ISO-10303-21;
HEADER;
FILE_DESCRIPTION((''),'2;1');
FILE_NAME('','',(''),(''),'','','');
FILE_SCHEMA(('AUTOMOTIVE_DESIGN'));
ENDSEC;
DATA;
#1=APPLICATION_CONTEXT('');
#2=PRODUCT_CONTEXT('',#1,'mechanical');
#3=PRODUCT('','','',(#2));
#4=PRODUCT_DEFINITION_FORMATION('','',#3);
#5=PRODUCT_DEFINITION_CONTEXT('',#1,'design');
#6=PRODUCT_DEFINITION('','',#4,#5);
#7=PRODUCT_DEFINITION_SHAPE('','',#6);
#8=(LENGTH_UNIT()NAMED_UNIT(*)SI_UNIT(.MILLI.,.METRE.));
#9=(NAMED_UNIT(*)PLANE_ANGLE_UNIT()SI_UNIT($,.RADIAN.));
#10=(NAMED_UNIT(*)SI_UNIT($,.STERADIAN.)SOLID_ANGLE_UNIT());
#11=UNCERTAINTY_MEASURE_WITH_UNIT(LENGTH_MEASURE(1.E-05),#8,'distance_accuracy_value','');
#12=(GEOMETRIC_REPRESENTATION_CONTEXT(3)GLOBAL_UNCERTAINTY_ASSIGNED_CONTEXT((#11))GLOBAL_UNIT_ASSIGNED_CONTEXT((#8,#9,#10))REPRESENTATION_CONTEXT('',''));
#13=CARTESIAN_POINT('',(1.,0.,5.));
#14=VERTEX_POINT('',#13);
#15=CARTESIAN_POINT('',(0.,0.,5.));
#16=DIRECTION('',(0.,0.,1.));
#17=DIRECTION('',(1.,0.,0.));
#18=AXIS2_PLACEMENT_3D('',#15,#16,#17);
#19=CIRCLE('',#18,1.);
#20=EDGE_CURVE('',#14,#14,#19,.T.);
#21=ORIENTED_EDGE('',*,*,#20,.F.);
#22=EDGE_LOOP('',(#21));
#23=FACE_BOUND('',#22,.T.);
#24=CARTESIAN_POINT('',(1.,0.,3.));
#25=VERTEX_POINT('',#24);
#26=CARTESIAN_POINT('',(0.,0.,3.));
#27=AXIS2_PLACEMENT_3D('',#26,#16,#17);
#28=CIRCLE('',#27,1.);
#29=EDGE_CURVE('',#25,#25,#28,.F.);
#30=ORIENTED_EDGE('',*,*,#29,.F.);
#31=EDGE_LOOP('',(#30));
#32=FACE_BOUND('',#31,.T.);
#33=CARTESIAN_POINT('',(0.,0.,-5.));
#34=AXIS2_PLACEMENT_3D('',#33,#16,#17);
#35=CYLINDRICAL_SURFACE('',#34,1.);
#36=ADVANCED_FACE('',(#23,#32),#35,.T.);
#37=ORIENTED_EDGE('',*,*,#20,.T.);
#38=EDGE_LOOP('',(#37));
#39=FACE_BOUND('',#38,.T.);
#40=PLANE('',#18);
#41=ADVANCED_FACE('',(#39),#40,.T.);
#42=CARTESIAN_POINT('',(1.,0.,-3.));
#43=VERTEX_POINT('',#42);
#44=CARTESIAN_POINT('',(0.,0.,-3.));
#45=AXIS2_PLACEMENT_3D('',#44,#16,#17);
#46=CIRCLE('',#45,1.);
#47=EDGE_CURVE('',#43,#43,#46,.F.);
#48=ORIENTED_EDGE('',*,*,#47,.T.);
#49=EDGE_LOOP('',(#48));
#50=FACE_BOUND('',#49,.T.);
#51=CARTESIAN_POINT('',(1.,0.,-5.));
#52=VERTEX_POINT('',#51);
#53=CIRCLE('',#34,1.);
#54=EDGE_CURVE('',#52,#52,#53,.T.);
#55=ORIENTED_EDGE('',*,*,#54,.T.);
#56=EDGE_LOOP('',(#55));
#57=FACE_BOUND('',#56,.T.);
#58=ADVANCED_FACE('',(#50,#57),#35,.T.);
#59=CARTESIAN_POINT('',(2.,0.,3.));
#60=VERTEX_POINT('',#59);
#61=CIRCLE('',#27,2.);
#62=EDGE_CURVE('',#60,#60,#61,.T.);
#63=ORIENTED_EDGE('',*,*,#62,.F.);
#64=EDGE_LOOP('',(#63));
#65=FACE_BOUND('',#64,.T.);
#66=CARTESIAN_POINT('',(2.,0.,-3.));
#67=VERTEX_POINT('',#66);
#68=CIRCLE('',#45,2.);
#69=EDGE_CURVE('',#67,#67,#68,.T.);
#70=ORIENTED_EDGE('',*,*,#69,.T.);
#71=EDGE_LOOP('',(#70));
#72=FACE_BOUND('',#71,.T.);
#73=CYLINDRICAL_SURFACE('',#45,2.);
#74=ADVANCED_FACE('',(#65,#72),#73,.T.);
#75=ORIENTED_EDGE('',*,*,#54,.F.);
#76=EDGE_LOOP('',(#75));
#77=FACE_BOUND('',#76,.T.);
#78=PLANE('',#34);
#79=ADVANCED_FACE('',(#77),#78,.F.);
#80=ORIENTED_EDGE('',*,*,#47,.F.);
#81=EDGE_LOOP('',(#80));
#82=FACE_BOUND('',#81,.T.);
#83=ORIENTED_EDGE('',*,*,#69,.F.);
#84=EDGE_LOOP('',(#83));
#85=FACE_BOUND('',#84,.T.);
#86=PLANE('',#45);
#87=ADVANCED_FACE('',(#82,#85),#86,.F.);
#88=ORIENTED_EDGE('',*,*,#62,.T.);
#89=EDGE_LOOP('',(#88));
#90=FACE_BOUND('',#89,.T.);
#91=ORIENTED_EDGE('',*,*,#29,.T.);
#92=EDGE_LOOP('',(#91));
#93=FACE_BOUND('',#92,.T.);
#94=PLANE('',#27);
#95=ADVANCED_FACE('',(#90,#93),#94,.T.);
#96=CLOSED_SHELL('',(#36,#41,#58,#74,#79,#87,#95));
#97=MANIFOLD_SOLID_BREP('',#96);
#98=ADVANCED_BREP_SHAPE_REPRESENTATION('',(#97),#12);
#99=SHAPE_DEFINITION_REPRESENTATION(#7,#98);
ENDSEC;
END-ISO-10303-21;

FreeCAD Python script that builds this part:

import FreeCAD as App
import Part
import Sketcher
from FreeCAD import Vector
Q = App.Units.Quantity

doc = App.newDocument("Part")
body = doc.addObject("PartDesign::Body", "Body")

# Sketch on XY plane
sketch1 = doc.addObject("Sketcher::SketchObject", "Sketch")
body.addObject(sketch1)
sketch1.AttachmentSupport = (doc.XY_Plane, [""])
sketch1.MapMode = "FlatFace"
sketch1.addGeometry(Part.Circle(Vector(0, 0, 0), Vector(0, 0, 1), 1), False)
sketch1.addConstraint(Sketcher.Constraint("Coincident", 0, 3, -1, 1))
sketch1.addConstraint(Sketcher.Constraint("Diameter", 0, Q("2 mm")))
pad1 = doc.addObject("PartDesign::Pad", "Pad")
body.addObject(pad1)
pad1.Profile = sketch1
pad1.Type = "TwoLengths"
pad1.Length = 5
pad1.Length2 = 5

# Sketch on XY plane
sketch2 = doc.addObject("Sketcher::SketchObject", "Sketch001")
body.addObject(sketch2)
sketch2.AttachmentSupport = (doc.XY_Plane, [""])
sketch2.MapMode = "FlatFace"
sketch2.addGeometry(Part.Circle(Vector(0, 0, 0), Vector(0, 0, 1), 2), False)
sketch2.addConstraint(Sketcher.Constraint("Coincident", 0, 3, -1, 1))
sketch2.addConstraint(Sketcher.Constraint("Diameter", 0, Q("4 mm")))
pad2 = doc.addObject("PartDesign::Pad", "Pad001")
body.addObject(pad2)
pad2.Profile = sketch2
pad2.Type = "TwoLengths"
pad2.Length = 3
pad2.Length2 = 3

doc.recompute()
